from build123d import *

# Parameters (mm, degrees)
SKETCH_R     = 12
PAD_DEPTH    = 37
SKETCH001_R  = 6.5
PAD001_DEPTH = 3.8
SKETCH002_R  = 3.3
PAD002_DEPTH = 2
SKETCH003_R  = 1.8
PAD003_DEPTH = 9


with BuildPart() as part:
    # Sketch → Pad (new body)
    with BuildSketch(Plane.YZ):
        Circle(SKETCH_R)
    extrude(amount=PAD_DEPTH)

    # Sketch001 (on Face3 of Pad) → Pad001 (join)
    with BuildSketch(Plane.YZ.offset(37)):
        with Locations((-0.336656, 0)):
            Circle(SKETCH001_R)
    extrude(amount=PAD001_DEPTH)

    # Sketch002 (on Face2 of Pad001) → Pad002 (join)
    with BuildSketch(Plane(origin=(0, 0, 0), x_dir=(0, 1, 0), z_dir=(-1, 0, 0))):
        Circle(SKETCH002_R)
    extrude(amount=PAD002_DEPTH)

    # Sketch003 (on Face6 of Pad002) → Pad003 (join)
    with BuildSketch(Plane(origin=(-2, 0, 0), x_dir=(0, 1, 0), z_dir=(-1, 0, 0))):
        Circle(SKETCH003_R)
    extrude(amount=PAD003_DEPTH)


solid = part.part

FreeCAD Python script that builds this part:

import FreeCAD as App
import Part
import Sketcher
Q = App.Units.Quantity

doc = App.newDocument("Part")
params = doc.addObject("Spreadsheet::Sheet", "Params")
for row, (alias, value) in enumerate([
    ("sketch1_diameter", "24 mm"),
    ("pad1_length", "37 mm"),
    ("sketch2_diameter", "13 mm"),
    ("pad2_length", "3.8 mm"),
    ("sketch3_diameter", "6.6 mm"),
    ("pad3_length", "2 mm"),
    ("sketch4_diameter", "3.6 mm"),
    ("pad4_length", "9 mm"),
], start=1):
    params.set(f"A{row}", alias)
    params.set(f"B{row}", "=" + value)
    params.setAlias(f"B{row}", alias)

body = doc.addObject("PartDesign::Body", "Body")

# Sketch on YZ plane
sketch1 = doc.addObject("Sketcher::SketchObject", "Sketch")
body.addObject(sketch1)
sketch1.AttachmentSupport = (doc.YZ_Plane, [""])
sketch1.MapMode = "FlatFace"
sketch1.addGeometry(Part.Circle(App.Vector(0, 0, 0), App.Vector(0, 0, 1), 12), False)
sketch1.addConstraint([
    Sketcher.Constraint("Coincident", 0, 3, -1, 1),
    Sketcher.Constraint("Diameter", 0, Q("24 mm")),
])
sketch1.setExpression("Constraints[1]", "Params.sketch1_diameter")
pad1 = doc.addObject("PartDesign::Pad", "Pad")
body.addObject(pad1)
pad1.Profile = sketch1
pad1.setExpression("Length", "Params.pad1_length")

# Sketch on YZ plane
sketch2 = doc.addObject("Sketcher::SketchObject", "Sketch001")
body.addObject(sketch2)
sketch2.AttachmentSupport = (doc.YZ_Plane, [""])
sketch2.MapMode = "FlatFace"
sketch2.AttachmentOffset = App.Placement(App.Vector(0, 0, 37), App.Rotation())
sketch2.addGeometry(Part.Circle(App.Vector(0, 0, 0), App.Vector(0, 0, 1), 6), False)
sketch2.addConstraint([
    Sketcher.Constraint("PointOnObject", 0, 3, -1),
    Sketcher.Constraint("Diameter", 0, Q("13 mm")),
    Sketcher.Constraint("DistanceX", 0, 3, -1, 1, Q("0.336656 mm")),
])
sketch2.setExpression("Constraints[1]", "Params.sketch2_diameter")
pad2 = doc.addObject("PartDesign::Pad", "Pad001")
body.addObject(pad2)
pad2.Profile = sketch2
pad2.setExpression("Length", "Params.pad2_length")

# Sketch on YZ plane
sketch3 = doc.addObject("Sketcher::SketchObject", "Sketch002")
body.addObject(sketch3)
sketch3.AttachmentSupport = (doc.YZ_Plane, [""])
sketch3.MapMode = "FlatFace"
sketch3.addGeometry(Part.Circle(App.Vector(0, 0, 0), App.Vector(0, 0, 1), 3.3), False)
sketch3.addConstraint([
    Sketcher.Constraint("Coincident", 0, 3, -1, 1),
    Sketcher.Constraint("Diameter", 0, Q("6.6 mm")),
])
sketch3.setExpression("Constraints[1]", "Params.sketch3_diameter")
pad3 = doc.addObject("PartDesign::Pad", "Pad002")
body.addObject(pad3)
pad3.Profile = sketch3
pad3.setExpression("Length", "Params.pad3_length")
pad3.Reversed = True

# Sketch on YZ plane
sketch4 = doc.addObject("Sketcher::SketchObject", "Sketch003")
body.addObject(sketch4)
sketch4.AttachmentSupport = (doc.YZ_Plane, [""])
sketch4.MapMode = "FlatFace"
sketch4.AttachmentOffset = App.Placement(App.Vector(0, 0, -2), App.Rotation())
sketch4.addGeometry(Part.Circle(App.Vector(0, 0, 0), App.Vector(0, 0, 1), 1.8), False)
sketch4.addConstraint([
    Sketcher.Constraint("Coincident", 0, 3, -1, 1),
    Sketcher.Constraint("Diameter", 0, Q("3.6 mm")),
])
sketch4.setExpression("Constraints[1]", "Params.sketch4_diameter")
pad4 = doc.addObject("PartDesign::Pad", "Pad003")
body.addObject(pad4)
pad4.Profile = sketch4
pad4.setExpression("Length", "Params.pad4_length")
pad4.Reversed = True

doc.recompute()
